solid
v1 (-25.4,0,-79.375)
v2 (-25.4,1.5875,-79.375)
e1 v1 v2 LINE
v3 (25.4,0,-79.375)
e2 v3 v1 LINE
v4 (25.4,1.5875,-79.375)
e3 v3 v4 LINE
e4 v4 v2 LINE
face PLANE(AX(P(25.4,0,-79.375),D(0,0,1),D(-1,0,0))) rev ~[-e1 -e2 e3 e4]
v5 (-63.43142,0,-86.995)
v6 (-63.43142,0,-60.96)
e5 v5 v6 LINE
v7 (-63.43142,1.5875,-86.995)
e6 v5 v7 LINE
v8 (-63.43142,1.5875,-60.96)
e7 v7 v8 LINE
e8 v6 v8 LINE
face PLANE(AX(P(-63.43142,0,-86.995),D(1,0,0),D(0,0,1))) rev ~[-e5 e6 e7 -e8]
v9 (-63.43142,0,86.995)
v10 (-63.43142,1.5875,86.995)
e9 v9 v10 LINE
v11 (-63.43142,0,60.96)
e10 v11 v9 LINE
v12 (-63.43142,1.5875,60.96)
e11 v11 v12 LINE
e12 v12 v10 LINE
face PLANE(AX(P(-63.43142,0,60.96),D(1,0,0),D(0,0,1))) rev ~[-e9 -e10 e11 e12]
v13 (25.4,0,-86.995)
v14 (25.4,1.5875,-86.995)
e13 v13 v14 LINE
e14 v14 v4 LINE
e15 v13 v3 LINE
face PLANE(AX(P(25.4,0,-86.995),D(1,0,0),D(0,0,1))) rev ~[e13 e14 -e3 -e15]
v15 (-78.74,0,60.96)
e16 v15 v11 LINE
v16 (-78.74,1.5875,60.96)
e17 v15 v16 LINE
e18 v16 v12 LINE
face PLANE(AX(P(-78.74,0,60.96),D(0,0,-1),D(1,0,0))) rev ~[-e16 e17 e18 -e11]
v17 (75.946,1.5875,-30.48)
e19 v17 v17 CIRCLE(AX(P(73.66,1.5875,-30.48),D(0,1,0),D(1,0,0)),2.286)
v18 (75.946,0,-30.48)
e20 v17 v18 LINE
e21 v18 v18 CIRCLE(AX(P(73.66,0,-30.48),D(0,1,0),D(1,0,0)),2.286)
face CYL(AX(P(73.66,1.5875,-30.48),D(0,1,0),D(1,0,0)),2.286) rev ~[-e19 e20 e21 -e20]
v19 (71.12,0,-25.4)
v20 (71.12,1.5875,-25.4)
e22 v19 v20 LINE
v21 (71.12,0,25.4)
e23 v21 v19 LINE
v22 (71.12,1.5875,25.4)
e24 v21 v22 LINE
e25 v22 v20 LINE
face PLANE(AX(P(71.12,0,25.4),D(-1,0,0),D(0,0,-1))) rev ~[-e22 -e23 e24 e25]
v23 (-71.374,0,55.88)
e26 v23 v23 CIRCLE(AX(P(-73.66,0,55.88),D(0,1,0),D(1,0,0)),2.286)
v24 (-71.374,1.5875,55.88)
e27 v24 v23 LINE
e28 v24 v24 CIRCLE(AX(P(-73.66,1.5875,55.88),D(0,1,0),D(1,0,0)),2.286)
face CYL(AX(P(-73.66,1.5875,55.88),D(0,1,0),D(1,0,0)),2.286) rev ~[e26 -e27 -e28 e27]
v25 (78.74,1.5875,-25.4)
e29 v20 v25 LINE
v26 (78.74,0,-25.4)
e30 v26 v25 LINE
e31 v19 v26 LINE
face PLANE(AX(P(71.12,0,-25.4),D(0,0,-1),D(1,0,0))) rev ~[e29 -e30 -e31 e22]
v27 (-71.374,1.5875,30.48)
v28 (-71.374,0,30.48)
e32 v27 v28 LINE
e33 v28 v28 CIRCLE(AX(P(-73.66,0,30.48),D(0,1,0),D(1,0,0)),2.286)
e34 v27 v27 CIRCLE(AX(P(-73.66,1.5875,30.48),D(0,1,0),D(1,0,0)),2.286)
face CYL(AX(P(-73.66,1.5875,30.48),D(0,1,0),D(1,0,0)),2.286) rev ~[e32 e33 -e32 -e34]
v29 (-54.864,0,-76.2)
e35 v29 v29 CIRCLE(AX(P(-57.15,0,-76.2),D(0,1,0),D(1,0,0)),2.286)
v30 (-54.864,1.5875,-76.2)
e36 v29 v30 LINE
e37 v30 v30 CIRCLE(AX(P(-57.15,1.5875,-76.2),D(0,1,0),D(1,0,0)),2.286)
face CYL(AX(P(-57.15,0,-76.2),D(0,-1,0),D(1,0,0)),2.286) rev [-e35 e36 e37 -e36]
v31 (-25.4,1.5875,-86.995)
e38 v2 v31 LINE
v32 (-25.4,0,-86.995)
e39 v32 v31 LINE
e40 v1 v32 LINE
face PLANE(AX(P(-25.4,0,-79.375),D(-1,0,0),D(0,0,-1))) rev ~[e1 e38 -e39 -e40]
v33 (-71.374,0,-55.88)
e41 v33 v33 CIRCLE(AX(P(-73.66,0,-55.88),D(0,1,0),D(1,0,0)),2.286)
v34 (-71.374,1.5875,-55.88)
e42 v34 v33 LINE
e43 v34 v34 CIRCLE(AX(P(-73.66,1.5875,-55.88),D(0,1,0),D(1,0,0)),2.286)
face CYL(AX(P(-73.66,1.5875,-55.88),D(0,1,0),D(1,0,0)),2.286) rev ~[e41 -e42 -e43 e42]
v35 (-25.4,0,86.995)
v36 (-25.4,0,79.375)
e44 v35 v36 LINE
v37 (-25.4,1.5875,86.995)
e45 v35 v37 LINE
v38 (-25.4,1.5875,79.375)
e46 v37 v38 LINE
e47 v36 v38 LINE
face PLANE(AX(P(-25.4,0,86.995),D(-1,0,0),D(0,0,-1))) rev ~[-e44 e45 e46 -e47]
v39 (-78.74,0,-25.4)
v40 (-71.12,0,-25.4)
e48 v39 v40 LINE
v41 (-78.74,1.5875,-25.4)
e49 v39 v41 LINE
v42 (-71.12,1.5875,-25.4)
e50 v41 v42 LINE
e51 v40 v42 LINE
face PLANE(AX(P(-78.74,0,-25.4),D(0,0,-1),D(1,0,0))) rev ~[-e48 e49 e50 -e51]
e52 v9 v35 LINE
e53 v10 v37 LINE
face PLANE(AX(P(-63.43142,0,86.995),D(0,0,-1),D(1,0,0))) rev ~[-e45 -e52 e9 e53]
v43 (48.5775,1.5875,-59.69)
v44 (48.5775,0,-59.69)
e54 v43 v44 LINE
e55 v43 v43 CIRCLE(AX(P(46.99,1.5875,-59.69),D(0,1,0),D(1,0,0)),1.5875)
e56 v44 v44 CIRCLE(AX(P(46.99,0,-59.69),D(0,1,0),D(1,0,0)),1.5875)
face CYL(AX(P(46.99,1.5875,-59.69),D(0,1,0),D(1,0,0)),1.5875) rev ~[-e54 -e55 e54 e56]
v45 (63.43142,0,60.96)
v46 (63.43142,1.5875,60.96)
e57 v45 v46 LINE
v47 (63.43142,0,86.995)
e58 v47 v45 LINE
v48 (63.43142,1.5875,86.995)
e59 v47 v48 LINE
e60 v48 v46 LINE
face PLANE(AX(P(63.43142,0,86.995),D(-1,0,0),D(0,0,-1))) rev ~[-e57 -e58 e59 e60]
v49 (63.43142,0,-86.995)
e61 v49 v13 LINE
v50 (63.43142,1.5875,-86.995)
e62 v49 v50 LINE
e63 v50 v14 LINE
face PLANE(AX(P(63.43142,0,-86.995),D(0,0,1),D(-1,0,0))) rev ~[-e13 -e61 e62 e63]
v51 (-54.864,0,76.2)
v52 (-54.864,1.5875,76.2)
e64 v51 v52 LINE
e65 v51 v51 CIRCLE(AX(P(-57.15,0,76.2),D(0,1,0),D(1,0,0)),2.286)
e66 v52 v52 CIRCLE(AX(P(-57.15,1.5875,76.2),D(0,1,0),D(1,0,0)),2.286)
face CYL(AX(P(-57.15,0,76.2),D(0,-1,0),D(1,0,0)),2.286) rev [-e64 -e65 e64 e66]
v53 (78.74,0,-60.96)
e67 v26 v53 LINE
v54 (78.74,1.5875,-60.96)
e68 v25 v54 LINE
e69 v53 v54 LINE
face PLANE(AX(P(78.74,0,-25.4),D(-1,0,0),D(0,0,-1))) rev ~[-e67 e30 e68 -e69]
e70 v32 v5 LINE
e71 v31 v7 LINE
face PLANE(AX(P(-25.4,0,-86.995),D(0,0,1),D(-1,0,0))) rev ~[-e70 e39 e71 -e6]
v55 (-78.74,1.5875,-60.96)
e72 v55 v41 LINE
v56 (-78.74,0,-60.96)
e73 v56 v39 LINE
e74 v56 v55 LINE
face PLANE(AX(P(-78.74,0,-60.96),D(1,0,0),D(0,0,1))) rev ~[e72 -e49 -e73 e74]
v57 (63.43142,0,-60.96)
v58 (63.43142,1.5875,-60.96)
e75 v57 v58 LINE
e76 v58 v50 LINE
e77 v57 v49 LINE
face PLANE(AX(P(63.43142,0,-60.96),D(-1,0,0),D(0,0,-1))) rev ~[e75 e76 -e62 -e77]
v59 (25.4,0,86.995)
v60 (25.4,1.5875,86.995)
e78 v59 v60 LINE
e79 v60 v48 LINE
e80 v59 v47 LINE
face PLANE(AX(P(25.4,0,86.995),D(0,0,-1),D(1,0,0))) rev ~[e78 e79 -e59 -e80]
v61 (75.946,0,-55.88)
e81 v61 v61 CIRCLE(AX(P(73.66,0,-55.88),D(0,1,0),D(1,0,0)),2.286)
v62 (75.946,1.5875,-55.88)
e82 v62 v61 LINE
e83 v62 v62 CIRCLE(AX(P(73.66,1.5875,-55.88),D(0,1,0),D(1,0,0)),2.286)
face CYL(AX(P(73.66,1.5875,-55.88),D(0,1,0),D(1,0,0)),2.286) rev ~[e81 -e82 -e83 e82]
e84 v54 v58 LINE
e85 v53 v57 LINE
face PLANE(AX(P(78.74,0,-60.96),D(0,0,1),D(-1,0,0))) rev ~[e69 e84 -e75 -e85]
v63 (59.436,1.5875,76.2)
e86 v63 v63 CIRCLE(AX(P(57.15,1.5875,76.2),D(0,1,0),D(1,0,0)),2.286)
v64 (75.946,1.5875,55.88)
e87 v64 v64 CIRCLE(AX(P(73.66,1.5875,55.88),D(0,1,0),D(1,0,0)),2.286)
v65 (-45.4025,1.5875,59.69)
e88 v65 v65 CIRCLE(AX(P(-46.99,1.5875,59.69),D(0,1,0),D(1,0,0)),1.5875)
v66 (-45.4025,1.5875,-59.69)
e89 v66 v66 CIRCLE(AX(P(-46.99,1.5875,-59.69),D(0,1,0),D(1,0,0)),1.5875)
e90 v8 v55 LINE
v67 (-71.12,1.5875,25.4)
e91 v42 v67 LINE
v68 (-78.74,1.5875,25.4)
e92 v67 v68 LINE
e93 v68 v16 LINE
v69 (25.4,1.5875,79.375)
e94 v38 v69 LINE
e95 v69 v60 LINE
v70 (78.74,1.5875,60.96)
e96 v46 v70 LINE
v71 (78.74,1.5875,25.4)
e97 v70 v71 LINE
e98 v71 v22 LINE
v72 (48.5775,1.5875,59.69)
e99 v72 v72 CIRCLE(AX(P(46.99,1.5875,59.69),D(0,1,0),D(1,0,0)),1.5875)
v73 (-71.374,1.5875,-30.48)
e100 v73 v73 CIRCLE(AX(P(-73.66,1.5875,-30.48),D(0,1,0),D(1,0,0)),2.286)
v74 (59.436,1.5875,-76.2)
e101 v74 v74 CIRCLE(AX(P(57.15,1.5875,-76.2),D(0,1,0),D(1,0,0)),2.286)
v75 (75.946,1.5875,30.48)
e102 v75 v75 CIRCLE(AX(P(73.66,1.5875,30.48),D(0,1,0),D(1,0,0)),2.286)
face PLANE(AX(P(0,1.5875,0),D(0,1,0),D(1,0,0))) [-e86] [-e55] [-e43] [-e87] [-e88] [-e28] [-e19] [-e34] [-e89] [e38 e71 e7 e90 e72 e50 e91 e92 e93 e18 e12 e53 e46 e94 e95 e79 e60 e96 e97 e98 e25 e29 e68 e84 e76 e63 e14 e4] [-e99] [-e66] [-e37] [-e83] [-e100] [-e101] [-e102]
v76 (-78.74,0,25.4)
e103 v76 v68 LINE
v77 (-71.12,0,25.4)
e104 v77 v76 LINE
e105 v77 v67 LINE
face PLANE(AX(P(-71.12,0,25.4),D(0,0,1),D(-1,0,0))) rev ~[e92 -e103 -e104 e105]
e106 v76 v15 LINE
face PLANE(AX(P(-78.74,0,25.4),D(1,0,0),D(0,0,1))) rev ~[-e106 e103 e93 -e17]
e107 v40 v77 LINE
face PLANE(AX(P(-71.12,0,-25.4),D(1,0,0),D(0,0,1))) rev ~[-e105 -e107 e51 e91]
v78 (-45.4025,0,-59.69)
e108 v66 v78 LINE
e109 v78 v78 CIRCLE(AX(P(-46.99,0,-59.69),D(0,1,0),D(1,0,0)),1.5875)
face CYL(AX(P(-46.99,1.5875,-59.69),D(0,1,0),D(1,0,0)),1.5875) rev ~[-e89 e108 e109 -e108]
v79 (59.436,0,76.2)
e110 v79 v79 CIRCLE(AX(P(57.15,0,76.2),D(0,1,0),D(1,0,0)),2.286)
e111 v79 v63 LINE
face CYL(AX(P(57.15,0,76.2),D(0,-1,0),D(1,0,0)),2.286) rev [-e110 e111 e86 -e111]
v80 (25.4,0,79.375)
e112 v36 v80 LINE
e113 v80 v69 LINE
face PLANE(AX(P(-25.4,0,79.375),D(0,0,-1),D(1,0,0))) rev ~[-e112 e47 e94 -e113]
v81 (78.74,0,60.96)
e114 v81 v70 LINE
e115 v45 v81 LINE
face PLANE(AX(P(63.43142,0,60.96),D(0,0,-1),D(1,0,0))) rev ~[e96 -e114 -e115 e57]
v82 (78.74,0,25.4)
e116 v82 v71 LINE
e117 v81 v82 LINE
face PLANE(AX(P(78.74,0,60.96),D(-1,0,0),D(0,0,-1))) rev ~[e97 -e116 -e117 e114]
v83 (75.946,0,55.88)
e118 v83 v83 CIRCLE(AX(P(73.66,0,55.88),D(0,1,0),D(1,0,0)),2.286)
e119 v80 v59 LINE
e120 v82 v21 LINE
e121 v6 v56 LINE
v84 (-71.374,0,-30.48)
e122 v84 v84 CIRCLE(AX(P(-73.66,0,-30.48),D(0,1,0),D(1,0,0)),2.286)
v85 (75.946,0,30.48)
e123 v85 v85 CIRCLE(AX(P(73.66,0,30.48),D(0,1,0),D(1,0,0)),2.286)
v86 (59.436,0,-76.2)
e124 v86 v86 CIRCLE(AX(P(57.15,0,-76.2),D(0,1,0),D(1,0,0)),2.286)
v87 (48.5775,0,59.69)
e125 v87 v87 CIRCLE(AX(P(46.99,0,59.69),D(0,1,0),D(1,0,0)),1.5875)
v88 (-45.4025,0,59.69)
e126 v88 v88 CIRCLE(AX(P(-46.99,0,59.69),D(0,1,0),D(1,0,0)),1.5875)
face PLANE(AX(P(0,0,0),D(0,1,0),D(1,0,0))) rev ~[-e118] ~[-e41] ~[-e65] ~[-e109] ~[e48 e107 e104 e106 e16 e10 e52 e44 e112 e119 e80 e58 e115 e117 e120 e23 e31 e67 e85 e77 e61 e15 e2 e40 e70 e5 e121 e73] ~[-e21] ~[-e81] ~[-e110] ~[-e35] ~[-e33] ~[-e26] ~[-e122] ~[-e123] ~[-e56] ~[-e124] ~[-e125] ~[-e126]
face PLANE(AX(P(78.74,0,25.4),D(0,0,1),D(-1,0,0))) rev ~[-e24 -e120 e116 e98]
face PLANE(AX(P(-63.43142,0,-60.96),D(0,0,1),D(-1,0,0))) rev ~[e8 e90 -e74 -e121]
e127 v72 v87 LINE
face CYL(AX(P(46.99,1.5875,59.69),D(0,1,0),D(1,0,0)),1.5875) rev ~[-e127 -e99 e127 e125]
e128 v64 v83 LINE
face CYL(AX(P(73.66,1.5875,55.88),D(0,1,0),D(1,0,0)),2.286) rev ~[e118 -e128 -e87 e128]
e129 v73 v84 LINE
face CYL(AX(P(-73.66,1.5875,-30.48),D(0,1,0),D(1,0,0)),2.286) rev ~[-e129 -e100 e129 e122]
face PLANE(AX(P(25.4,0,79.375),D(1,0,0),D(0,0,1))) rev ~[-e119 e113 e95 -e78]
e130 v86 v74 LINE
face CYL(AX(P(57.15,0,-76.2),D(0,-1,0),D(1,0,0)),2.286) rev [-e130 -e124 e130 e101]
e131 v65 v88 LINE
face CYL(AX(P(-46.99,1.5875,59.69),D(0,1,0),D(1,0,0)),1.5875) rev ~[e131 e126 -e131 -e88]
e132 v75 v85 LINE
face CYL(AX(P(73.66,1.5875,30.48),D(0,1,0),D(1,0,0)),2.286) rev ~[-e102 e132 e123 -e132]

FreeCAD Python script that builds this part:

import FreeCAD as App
import Part
import Sketcher
from FreeCAD import Vector
Q = App.Units.Quantity

doc = App.newDocument("Part")
body = doc.addObject("PartDesign::Body", "Body")

# Sketch on XZ plane
sketch1 = doc.addObject("Sketcher::SketchObject", "Sketch")
body.addObject(sketch1)
sketch1.AttachmentSupport = (doc.XZ_Plane, [""])
sketch1.MapMode = "FlatFace"
sketch1.addGeometry([
    Part.LineSegment(Vector(-25.4, -87, 0), Vector(-63.4, -87, 0)),  # 0
    Part.LineSegment(Vector(-63.4, -87, 0), Vector(-63.4, -61, 0)),  # 1
    Part.LineSegment(Vector(-63.4, -61, 0), Vector(-78.7, -61, 0)),  # 2
    Part.LineSegment(Vector(-78.7, -61, 0), Vector(-78.7, -25.4, 0)),  # 3
    Part.LineSegment(Vector(-78.7, -25.4, 0), Vector(-71.1, -25.4, 0)),  # 4
    Part.LineSegment(Vector(-71.1, -25.4, 0), Vector(-71.1, 25.4, 0)),  # 5
    Part.LineSegment(Vector(-71.1, 25.4, 0), Vector(-78.7, 25.4, 0)),  # 6
    Part.LineSegment(Vector(-78.7, 25.4, 0), Vector(-78.7, 61, 0)),  # 7
    Part.LineSegment(Vector(-78.7, 61, 0), Vector(-63.4, 61, 0)),  # 8
    Part.LineSegment(Vector(-63.4, 61, 0), Vector(-63.4, 87, 0)),  # 9
    Part.LineSegment(Vector(-63.4, 87, 0), Vector(-25.4, 87, 0)),  # 10
    Part.LineSegment(Vector(-25.4, 87, 0), Vector(-25.4, 79.4, 0)),  # 11
    Part.LineSegment(Vector(-25.4, 79.4, 0), Vector(25.4, 79.4, 0)),  # 12
    Part.LineSegment(Vector(25.4, 79.4, 0), Vector(25.4, 87, 0)),  # 13
    Part.LineSegment(Vector(25.4, 87, 0), Vector(63.4, 87, 0)),  # 14
    Part.LineSegment(Vector(63.4, 87, 0), Vector(63.4, 61, 0)),  # 15
    Part.LineSegment(Vector(63.4, 61, 0), Vector(78.7, 61, 0)),  # 16
    Part.LineSegment(Vector(78.7, 61, 0), Vector(78.7, 25.4, 0)),  # 17
    Part.LineSegment(Vector(78.7, 25.4, 0), Vector(71.1, 25.4, 0)),  # 18
    Part.LineSegment(Vector(71.1, 25.4, 0), Vector(71.1, -25.4, 0)),  # 19
    Part.LineSegment(Vector(71.1, -25.4, 0), Vector(78.7, -25.4, 0)),  # 20
    Part.LineSegment(Vector(78.7, -25.4, 0), Vector(78.7, -61, 0)),  # 21
    Part.LineSegment(Vector(78.7, -61, 0), Vector(63.4, -61, 0)),  # 22
    Part.LineSegment(Vector(63.4, -61, 0), Vector(63.4, -87, 0)),  # 23
    Part.LineSegment(Vector(63.4, -87, 0), Vector(25.4, -87, 0)),  # 24
    Part.LineSegment(Vector(25.4, -87, 0), Vector(25.4, -79.4, 0)),  # 25
    Part.LineSegment(Vector(25.4, -79.4, 0), Vector(-25.4, -79.4, 0)),  # 26
    Part.LineSegment(Vector(-25.4, -79.4, 0), Vector(-25.4, -87, 0)),  # 27
    Part.Circle(Vector(-57.1, 76.2, 0), Vector(0, 0, 1), 2.3),  # 28
    Part.Circle(Vector(57.1, 76.2, 0), Vector(0, 0, 1), 2.3),  # 29
    Part.Circle(Vector(-57.1, -76.2, 0), Vector(0, 0, 1), 2.3),  # 30
    Part.Circle(Vector(57.1, -76.2, 0), Vector(0, 0, 1), 2.3),  # 31
], False)
sketch1.addConstraint([
    Sketcher.Constraint("Coincident", 0, 2, 1, 1),
    Sketcher.Constraint("Coincident", 1, 2, 2, 1),
    Sketcher.Constraint("Coincident", 2, 2, 3, 1),
    Sketcher.Constraint("Coincident", 3, 2, 4, 1),
    Sketcher.Constraint("Coincident", 4, 2, 5, 1),
    Sketcher.Constraint("Coincident", 5, 2, 6, 1),
    Sketcher.Constraint("Coincident", 6, 2, 7, 1),
    Sketcher.Constraint("Coincident", 7, 2, 8, 1),
    Sketcher.Constraint("Coincident", 8, 2, 9, 1),
    Sketcher.Constraint("Coincident", 9, 2, 10, 1),
    Sketcher.Constraint("Coincident", 10, 2, 11, 1),
    Sketcher.Constraint("Coincident", 11, 2, 12, 1),
    Sketcher.Constraint("Coincident", 12, 2, 13, 1),
    Sketcher.Constraint("Coincident", 13, 2, 14, 1),
    Sketcher.Constraint("Coincident", 14, 2, 15, 1),
    Sketcher.Constraint("Coincident", 15, 2, 16, 1),
    Sketcher.Constraint("Coincident", 16, 2, 17, 1),
    Sketcher.Constraint("Coincident", 17, 2, 18, 1),
    Sketcher.Constraint("Coincident", 18, 2, 19, 1),
    Sketcher.Constraint("Coincident", 19, 2, 20, 1),
    Sketcher.Constraint("Coincident", 20, 2, 21, 1),
    Sketcher.Constraint("Coincident", 21, 2, 22, 1),
    Sketcher.Constraint("Coincident", 22, 2, 23, 1),
    Sketcher.Constraint("Coincident", 23, 2, 24, 1),
    Sketcher.Constraint("Coincident", 24, 2, 25, 1),
    Sketcher.Constraint("Coincident", 25, 2, 26, 1),
    Sketcher.Constraint("Coincident", 26, 2, 27, 1),
    Sketcher.Constraint("Coincident", 27, 2, 0, 1),
    Sketcher.Constraint("Horizontal", 0),
    Sketcher.Constraint("Vertical", 1),
    Sketcher.Constraint("Horizontal", 2),
    Sketcher.Constraint("Vertical", 3),
    Sketcher.Constraint("Horizontal", 4),
    Sketcher.Constraint("Vertical", 5),
    Sketcher.Constraint("Horizontal", 6),
    Sketcher.Constraint("Vertical", 7),
    Sketcher.Constraint("Horizontal", 8),
    Sketcher.Constraint("Vertical", 9),
    Sketcher.Constraint("Horizontal", 10),
    Sketcher.Constraint("Vertical", 11),
    Sketcher.Constraint("Horizontal", 12),
    Sketcher.Constraint("Vertical", 13),
    Sketcher.Constraint("Horizontal", 14),
    Sketcher.Constraint("Vertical", 15),
    Sketcher.Constraint("Horizontal", 16),
    Sketcher.Constraint("Vertical", 17),
    Sketcher.Constraint("Horizontal", 18),
    Sketcher.Constraint("Vertical", 19),
    Sketcher.Constraint("Horizontal", 20),
    Sketcher.Constraint("Vertical", 21),
    Sketcher.Constraint("Horizontal", 22),
    Sketcher.Constraint("Vertical", 23),
    Sketcher.Constraint("Horizontal", 24),
    Sketcher.Constraint("Vertical", 25),
    Sketcher.Constraint("Horizontal", 26),
    Sketcher.Constraint("Vertical", 27),
    Sketcher.Constraint("Equal", 28, 29),
    Sketcher.Constraint("Equal", 29, 30),
    Sketcher.Constraint("Equal", 30, 31),
    Sketcher.Constraint("Symmetric", 29, 3, 30, 3, -1, 1),
    Sketcher.Constraint("Symmetric", 28, 3, 31, 3, -1, 1),
    Sketcher.Constraint("Symmetric", 0, 2, 14, 2, -1, 1),
    Sketcher.Constraint("Symmetric", 2, 2, 16, 2, -1, 1),
    Sketcher.Constraint("Symmetric", 4, 2, 18, 2, -1, 1),
    Sketcher.Constraint("Symmetric", 6, 2, 20, 2, -1, 1),
    Sketcher.Constraint("Symmetric", 8, 2, 22, 2, -1, 1),
    Sketcher.Constraint("Symmetric", 10, 2, 24, 2, -1, 1),
    Sketcher.Constraint("Symmetric", 12, 2, 26, 2, -1, 1),
    Sketcher.Constraint("Symmetric", 28, 3, 29, 3, -2),
    Sketcher.Constraint("Symmetric", 10, 2, 13, 2, -2),
    Sketcher.Constraint("Symmetric", 8, 2, 15, 2, -2),
    Sketcher.Constraint("Symmetric", 6, 2, 17, 2, -2),
    Sketcher.Constraint("Equal", 26, 5),
    Sketcher.Constraint("Equal", 20, 11),
    Sketcher.Constraint("Diameter", 28, Q("0.18 in")),
    Sketcher.Constraint("DistanceX", 12, 1, 12, 2, Q("2 in")),
    Sketcher.Constraint("DistanceX", 4, 1, 4, 2, Q("0.3 in")),
    Sketcher.Constraint("DistanceY", 3, 1, 3, 2, Q("1.4 in")),
    Sketcher.Constraint("DistanceY", -1, 1, 28, 3, Q("3 in")),
    Sketcher.Constraint("DistanceX", 2, 2, -1, 1, Q("3.1 in")),
    Sketcher.Constraint("DistanceX", 28, 3, 29, 3, Q("4.5 in")),
    Sketcher.Constraint("DistanceY", 1, 1, 1, 2, Q("1.025 in")),
    Sketcher.Constraint("DistanceX", 0, 2, 0, 1, Q("1.4973 in")),
])
pad1 = doc.addObject("PartDesign::Pad", "Pad")
body.addObject(pad1)
pad1.Profile = sketch1
pad1.Length = Q("0.0625 in")
pad1.Reversed = True

# Sketch on XZ plane
sketch2 = doc.addObject("Sketcher::SketchObject", "Sketch001")
body.addObject(sketch2)
sketch2.AttachmentSupport = (doc.XZ_Plane, [""])
sketch2.MapMode = "FlatFace"
sketch2.AttachmentOffset = App.Placement(Vector(0, 0, -0.0625 * 25.4), App.Rotation())
sketch2.addGeometry([
    Part.Circle(Vector(-73.7, 30.5, 0), Vector(0, 0, 1), 2.3),  # 0
    Part.Circle(Vector(-73.7, 55.9, 0), Vector(0, 0, 1), 2.3),  # 1
    Part.Circle(Vector(73.7, 55.9, 0), Vector(0, 0, 1), 2.3),  # 2
    Part.Circle(Vector(73.7, 30.5, 0), Vector(0, 0, 1), 2.3),  # 3
    Part.Circle(Vector(73.7, -30.5, 0), Vector(0, 0, 1), 2.3),  # 4
    Part.Circle(Vector(73.7, -55.9, 0), Vector(0, 0, 1), 2.3),  # 5
    Part.Circle(Vector(-73.7, -55.9, 0), Vector(0, 0, 1), 2.3),  # 6
    Part.Circle(Vector(-73.7, -30.5, 0), Vector(0, 0, 1), 2.3),  # 7
], False)
sketch2.addConstraint([
    Sketcher.Constraint("Equal", 0, 1),
    Sketcher.Constraint("Equal", 1, 2),
    Sketcher.Constraint("Equal", 2, 3),
    Sketcher.Constraint("Equal", 3, 4),
    Sketcher.Constraint("Equal", 4, 5),
    Sketcher.Constraint("Equal", 5, 6),
    Sketcher.Constraint("Equal", 6, 7),
    Sketcher.Constraint("Symmetric", 0, 3, 4, 3, -1, 1),
    Sketcher.Constraint("Symmetric", 1, 3, 5, 3, -1, 1),
    Sketcher.Constraint("Symmetric", 2, 3, 6, 3, -1, 1),
    Sketcher.Constraint("Symmetric", 3, 3, 7, 3, -1, 1),
    Sketcher.Constraint("Symmetric", 1, 3, 2, 3, -2),
    Sketcher.Constraint("Symmetric", 0, 3, 3, 3, -2),
    Sketcher.Constraint("Vertical", 0, 3, 1, 3),
    Sketcher.Constraint("Diameter", 0, Q("0.18 in")),
    Sketcher.Constraint("DistanceY", 0, 3, 1, 3, Q("1 in")),
    Sketcher.Constraint("DistanceX", 0, 3, -1, 1, Q("2.9 in")),
    Sketcher.Constraint("DistanceY", -1, 1, 0, 3, Q("1.2 in")),
])
pocket1 = doc.addObject("PartDesign::Pocket", "Pocket")
body.addObject(pocket1)
pocket1.Profile = sketch2
pocket1.Type = "ThroughAll"
pocket1.Reversed = True

# Sketch on XZ plane
sketch3 = doc.addObject("Sketcher::SketchObject", "Sketch002")
body.addObject(sketch3)
sketch3.AttachmentSupport = (doc.XZ_Plane, [""])
sketch3.MapMode = "FlatFace"
sketch3.AttachmentOffset = App.Placement(Vector(0, 0, -0.0625 * 25.4), App.Rotation())
sketch3.addGeometry([
    Part.Circle(Vector(47, 59.7, 0), Vector(0, 0, 1), 1.6),
    Part.Circle(Vector(-47, 59.7, 0), Vector(0, 0, 1), 1.6),
    Part.Circle(Vector(-47, -59.7, 0), Vector(0, 0, 1), 1.6),
    Part.Circle(Vector(47, -59.7, 0), Vector(0, 0, 1), 1.6),
], False)
sketch3.addConstraint([
    Sketcher.Constraint("Equal", 0, 1),
    Sketcher.Constraint("Equal", 1, 2),
    Sketcher.Constraint("Equal", 2, 3),
    Sketcher.Constraint("Symmetric", 0, 3, 2, 3, -1, 1),
    Sketcher.Constraint("Symmetric", 1, 3, 3, 3, -1, 1),
    Sketcher.Constraint("Symmetric", 0, 3, 1, 3, -2),
    Sketcher.Constraint("Diameter", 0, Q("0.125 in")),
    Sketcher.Constraint("DistanceX", 1, 3, 0, 3, Q("3.7 in")),
    Sketcher.Constraint("DistanceY", 2, 3, 1, 3, Q("4.7 in")),
])
pocket2 = doc.addObject("PartDesign::Pocket", "Pocket001")
body.addObject(pocket2)
pocket2.Profile = sketch3
pocket2.Length = Q("0.1 in")
pocket2.Reversed = True

doc.recompute()
